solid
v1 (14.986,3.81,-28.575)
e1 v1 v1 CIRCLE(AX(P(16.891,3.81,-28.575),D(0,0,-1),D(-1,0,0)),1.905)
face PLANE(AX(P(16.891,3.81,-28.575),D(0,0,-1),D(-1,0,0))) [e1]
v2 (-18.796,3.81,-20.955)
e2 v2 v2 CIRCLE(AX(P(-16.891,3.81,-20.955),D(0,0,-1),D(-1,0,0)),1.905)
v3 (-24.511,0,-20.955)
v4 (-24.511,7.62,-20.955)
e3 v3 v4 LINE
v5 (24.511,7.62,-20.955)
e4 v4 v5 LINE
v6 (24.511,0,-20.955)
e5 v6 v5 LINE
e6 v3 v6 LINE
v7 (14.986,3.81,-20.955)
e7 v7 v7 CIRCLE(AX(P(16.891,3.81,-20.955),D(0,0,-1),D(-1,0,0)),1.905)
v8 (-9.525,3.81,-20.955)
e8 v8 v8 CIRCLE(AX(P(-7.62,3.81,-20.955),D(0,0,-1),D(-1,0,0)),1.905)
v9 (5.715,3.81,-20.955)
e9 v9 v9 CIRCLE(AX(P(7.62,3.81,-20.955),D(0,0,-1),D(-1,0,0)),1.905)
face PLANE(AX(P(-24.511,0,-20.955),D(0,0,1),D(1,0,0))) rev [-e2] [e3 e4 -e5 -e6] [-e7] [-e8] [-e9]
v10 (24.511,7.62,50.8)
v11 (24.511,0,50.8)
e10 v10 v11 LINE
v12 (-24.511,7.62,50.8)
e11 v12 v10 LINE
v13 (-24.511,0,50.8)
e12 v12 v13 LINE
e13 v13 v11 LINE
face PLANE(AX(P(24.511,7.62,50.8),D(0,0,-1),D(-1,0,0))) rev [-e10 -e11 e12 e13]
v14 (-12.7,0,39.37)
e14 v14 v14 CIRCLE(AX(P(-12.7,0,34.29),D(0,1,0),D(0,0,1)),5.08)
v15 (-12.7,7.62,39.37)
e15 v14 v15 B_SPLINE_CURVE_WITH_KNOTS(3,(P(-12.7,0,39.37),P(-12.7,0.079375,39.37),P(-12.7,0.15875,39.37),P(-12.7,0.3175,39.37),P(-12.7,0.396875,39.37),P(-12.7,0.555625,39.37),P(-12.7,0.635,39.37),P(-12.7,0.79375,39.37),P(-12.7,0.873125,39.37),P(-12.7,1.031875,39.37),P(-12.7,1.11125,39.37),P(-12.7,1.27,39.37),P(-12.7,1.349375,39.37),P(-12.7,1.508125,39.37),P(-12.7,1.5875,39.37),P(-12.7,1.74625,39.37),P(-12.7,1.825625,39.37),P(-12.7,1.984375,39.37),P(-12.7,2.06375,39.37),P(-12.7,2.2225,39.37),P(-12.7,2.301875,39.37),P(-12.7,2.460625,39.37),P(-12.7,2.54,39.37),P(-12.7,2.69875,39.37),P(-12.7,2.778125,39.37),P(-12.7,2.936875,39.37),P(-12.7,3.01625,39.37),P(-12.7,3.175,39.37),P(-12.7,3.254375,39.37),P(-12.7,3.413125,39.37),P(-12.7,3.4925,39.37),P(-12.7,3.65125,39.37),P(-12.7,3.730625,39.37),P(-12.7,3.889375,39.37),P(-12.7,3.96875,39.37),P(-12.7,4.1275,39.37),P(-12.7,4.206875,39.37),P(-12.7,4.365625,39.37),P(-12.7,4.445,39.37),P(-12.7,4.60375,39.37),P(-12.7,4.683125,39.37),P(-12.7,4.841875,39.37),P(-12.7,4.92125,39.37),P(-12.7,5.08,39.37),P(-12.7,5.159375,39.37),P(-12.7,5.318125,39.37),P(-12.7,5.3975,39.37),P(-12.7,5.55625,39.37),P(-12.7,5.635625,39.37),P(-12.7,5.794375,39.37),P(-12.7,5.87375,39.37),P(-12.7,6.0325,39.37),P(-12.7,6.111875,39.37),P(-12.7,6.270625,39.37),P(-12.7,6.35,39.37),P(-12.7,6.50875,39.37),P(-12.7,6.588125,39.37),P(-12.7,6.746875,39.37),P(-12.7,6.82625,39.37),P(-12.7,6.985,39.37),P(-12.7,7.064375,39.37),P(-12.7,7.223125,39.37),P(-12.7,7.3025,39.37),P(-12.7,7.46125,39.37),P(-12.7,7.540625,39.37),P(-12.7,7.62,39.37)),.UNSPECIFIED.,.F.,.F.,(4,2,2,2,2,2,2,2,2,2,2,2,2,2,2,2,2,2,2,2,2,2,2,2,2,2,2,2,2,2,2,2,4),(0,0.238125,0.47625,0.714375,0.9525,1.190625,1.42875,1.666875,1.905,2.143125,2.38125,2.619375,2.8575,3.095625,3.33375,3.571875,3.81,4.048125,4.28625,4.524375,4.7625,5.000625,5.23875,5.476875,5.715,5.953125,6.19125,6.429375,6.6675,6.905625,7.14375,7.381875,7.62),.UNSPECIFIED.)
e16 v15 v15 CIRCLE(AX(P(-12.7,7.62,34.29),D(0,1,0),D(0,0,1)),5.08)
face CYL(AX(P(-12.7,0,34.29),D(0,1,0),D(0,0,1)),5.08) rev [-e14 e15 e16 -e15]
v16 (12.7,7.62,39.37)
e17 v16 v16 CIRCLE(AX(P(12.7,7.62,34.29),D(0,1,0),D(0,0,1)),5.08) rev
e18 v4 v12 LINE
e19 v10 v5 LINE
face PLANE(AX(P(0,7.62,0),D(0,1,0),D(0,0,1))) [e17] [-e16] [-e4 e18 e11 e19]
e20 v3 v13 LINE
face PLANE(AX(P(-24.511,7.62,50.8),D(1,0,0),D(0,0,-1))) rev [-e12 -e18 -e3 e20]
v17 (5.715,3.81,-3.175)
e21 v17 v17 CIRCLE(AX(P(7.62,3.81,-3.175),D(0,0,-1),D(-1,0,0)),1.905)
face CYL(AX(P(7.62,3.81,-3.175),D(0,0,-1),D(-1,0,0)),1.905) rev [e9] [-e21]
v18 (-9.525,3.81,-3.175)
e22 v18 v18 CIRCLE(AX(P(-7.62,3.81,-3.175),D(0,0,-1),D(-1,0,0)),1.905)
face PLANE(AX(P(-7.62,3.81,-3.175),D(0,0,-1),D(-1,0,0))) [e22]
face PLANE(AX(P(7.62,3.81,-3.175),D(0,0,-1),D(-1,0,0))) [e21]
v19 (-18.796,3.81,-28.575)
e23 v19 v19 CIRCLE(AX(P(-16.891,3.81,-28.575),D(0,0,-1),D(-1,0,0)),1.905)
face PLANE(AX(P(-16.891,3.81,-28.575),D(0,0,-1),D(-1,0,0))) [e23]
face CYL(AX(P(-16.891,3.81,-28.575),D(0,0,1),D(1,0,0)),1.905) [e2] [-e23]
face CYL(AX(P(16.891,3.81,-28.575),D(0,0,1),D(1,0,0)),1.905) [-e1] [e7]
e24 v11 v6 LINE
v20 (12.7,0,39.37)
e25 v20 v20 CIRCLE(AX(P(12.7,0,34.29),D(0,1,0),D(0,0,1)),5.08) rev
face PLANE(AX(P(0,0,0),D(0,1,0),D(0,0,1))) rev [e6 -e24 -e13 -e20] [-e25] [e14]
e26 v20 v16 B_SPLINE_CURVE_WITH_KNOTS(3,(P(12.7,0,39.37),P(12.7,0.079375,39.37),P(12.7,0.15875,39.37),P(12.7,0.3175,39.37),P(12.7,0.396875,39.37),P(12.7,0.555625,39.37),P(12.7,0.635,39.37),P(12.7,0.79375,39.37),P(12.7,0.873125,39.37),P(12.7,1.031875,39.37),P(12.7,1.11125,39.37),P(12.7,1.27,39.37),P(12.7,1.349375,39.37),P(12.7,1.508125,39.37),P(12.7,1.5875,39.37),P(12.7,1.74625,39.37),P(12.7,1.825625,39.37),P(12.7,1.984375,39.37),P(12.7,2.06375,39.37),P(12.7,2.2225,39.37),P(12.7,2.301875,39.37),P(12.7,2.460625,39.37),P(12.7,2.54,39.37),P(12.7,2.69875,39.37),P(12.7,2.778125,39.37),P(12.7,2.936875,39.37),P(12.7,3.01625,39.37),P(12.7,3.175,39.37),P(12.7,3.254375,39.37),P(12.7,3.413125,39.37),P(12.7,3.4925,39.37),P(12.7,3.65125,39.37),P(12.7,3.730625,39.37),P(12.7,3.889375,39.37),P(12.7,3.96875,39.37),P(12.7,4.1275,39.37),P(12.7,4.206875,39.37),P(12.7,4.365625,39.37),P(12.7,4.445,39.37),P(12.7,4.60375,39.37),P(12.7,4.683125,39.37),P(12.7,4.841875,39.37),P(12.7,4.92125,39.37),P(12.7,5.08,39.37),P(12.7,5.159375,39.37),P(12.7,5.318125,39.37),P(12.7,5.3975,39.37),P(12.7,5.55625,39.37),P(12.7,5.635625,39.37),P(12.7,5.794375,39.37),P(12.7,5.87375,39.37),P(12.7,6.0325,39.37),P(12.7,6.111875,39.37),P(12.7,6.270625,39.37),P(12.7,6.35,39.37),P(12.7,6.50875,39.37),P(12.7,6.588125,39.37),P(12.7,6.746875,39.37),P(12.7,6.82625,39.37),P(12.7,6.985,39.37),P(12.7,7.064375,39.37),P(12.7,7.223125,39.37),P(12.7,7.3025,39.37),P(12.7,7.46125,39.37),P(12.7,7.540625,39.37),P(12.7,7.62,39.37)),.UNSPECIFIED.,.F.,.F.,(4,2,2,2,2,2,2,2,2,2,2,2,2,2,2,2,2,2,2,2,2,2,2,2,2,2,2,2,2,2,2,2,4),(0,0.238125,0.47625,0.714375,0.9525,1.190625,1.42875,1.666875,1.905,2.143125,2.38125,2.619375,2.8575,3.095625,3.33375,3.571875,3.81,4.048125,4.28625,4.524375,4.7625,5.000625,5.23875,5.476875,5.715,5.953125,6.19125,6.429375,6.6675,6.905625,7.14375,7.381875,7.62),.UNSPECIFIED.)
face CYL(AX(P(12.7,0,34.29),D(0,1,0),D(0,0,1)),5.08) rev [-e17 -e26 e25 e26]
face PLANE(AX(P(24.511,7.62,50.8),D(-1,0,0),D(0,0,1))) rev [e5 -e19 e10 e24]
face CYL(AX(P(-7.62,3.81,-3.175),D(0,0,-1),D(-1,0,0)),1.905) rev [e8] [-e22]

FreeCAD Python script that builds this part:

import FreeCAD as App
import Part
import Sketcher
Q = App.Units.Quantity

doc = App.newDocument("Part")
body = doc.addObject("PartDesign::Body", "Body")

# Sketch on XZ plane
sketch1 = doc.addObject("Sketcher::SketchObject", "Sketch")
body.addObject(sketch1)
sketch1.AttachmentSupport = (doc.XZ_Plane, [""])
sketch1.MapMode = "FlatFace"
sketch1.addGeometry([
    Part.LineSegment(App.Vector(-24.511, -50.8, 0), App.Vector(-24.511, 50.8, 0)),
    Part.LineSegment(App.Vector(-24.511, 50.8, 0), App.Vector(24.511, 50.8, 0)),
    Part.LineSegment(App.Vector(24.511, 50.8, 0), App.Vector(24.511, -50.8, 0)),
    Part.LineSegment(App.Vector(24.511, -50.8, 0), App.Vector(-24.511, -50.8, 0)),
], False)
sketch1.addConstraint([
    Sketcher.Constraint("Coincident", 0, 2, 1, 1),
    Sketcher.Constraint("Coincident", 1, 2, 2, 1),
    Sketcher.Constraint("Coincident", 2, 2, 3, 1),
    Sketcher.Constraint("Coincident", 3, 2, 0, 1),
    Sketcher.Constraint("Vertical", 0),
    Sketcher.Constraint("Horizontal", 1),
    Sketcher.Constraint("Vertical", 2),
    Sketcher.Constraint("Horizontal", 3),
    Sketcher.Constraint("Symmetric", 0, 2, 2, 2, -1, 1),
    Sketcher.Constraint("DistanceY", 0, 1, 0, 2, Q("4 in")),
    Sketcher.Constraint("DistanceX", 1, 1, 1, 2, Q("1.93 in")),
])
pad1 = doc.addObject("PartDesign::Pad", "Pad")
body.addObject(pad1)
pad1.Profile = sketch1
pad1.Length = Q("0.3 in")
pad1.Reversed = True

# Sketch on XZ plane
sketch2 = doc.addObject("Sketcher::SketchObject", "Sketch001")
body.addObject(sketch2)
sketch2.AttachmentSupport = (doc.XZ_Plane, [""])
sketch2.MapMode = "FlatFace"
sketch2.AttachmentOffset = App.Placement(App.Vector(0, 0, -0.3 * 25.4), App.Rotation())
sketch2.addGeometry([
    Part.Circle(App.Vector(12.7, 34.29, 0), App.Vector(0, 0, 1), 5.08),
    Part.Circle(App.Vector(-12.7, 34.29, 0), App.Vector(0, 0, 1), 5.08),
], False)
sketch2.addConstraint([
    Sketcher.Constraint("Equal", 0, 1),
    Sketcher.Constraint("Symmetric", 0, 3, 1, 3, -2),
    Sketcher.Constraint("Diameter", 0, Q("0.4 in")),
    Sketcher.Constraint("DistanceX", 1, 3, 0, 3, Q("1 in")),
    Sketcher.Constraint("DistanceY", -1, 1, 0, 3, Q("1.35 in")),
])
pocket1 = doc.addObject("PartDesign::Pocket", "Pocket")
body.addObject(pocket1)
pocket1.Profile = sketch2
pocket1.Length = Q("0.3 in")
pocket1.Reversed = True

# Sketch on XZ plane
sketch3 = doc.addObject("Sketcher::SketchObject", "Sketch002")
body.addObject(sketch3)
sketch3.AttachmentSupport = (doc.XZ_Plane, [""])
sketch3.MapMode = "FlatFace"
sketch3.AttachmentOffset = App.Placement(App.Vector(0, 0, -0.3 * 25.4), App.Rotation())
sketch3.addGeometry([
    Part.LineSegment(App.Vector(-24.511, -50.8, 0), App.Vector(-24.511, -20.955, 0)),
    Part.LineSegment(App.Vector(-24.511, -20.955, 0), App.Vector(24.511, -20.955, 0)),
    Part.LineSegment(App.Vector(24.511, -20.955, 0), App.Vector(24.511, -50.8, 0)),
    Part.LineSegment(App.Vector(24.511, -50.8, 0), App.Vector(-24.511, -50.8, 0)),
], False)
sketch3.addConstraint([
    Sketcher.Constraint("Coincident", 0, 2, 1, 1),
    Sketcher.Constraint("Coincident", 1, 2, 2, 1),
    Sketcher.Constraint("Coincident", 2, 2, 3, 1),
    Sketcher.Constraint("Coincident", 3, 2, 0, 1),
    Sketcher.Constraint("Vertical", 0),
    Sketcher.Constraint("Horizontal", 1),
    Sketcher.Constraint("Vertical", 2),
    Sketcher.Constraint("Horizontal", 3),
    Sketcher.Constraint("DistanceY", 2, 2, -1, 1, Q("2 in")),
    Sketcher.Constraint("DistanceX", 1, 1, 1, 2, Q("1.93 in")),
    Sketcher.Constraint("DistanceY", 0, 1, 0, 2, Q("1.175 in")),
    Sketcher.Constraint("DistanceX", 0, 2, -1, 1, Q("0.965 in")),
])
pocket2 = doc.addObject("PartDesign::Pocket", "Pocket001")
body.addObject(pocket2)
pocket2.Profile = sketch3
pocket2.Type = "ThroughAll"
pocket2.Reversed = True

# Sketch on XY plane
sketch4 = doc.addObject("Sketcher::SketchObject", "Sketch003")
body.addObject(sketch4)
sketch4.AttachmentSupport = (doc.XY_Plane, [""])
sketch4.MapMode = "FlatFace"
sketch4.AttachmentOffset = App.Placement(App.Vector(0, 0, -0.825 * 25.4), App.Rotation())
sketch4.addGeometry([
    Part.Circle(App.Vector(16.891, 3.81, 0), App.Vector(0, 0, 1), 1.905),
    Part.Circle(App.Vector(7.62, 3.81, 0), App.Vector(0, 0, 1), 1.905),
    Part.Circle(App.Vector(-7.62, 3.81, 0), App.Vector(0, 0, 1), 1.905),
    Part.Circle(App.Vector(-16.891, 3.81, 0), App.Vector(0, 0, 1), 1.905),
], False)
sketch4.addConstraint([
    Sketcher.Constraint("Equal", 0, 1),
    Sketcher.Constraint("Equal", 1, 2),
    Sketcher.Constraint("Equal", 2, 3),
    Sketcher.Constraint("Symmetric", 1, 3, 2, 3, -2),
    Sketcher.Constraint("Symmetric", 0, 3, 3, 3, -2),
    Sketcher.Constraint("Horizontal", 0, 3, 1, 3),
    Sketcher.Constraint("Diameter", 0, Q("0.15 in")),
    Sketcher.Constraint("DistanceX", -1, 1, 1, 3, Q("0.3 in")),
    Sketcher.Constraint("DistanceY", -1, 1, 0, 3, Q("0.15 in")),
    Sketcher.Constraint("DistanceX", 3, 3, 0, 3, Q("1.33 in")),
])
pocket3 = doc.addObject("PartDesign::Pocket", "Pocket002")
body.addObject(pocket3)
pocket3.Profile = sketch4
pocket3.Length = Q("0.7 in")
pocket3.Reversed = True

# Sketch on XY plane
sketch5 = doc.addObject("Sketcher::SketchObject", "Sketch004")
body.addObject(sketch5)
sketch5.AttachmentSupport = (doc.XY_Plane, [""])
sketch5.MapMode = "FlatFace"
sketch5.AttachmentOffset = App.Placement(App.Vector(0, 0, -1.125 * 25.4), App.Rotation())
sketch5.addGeometry([
    Part.Circle(App.Vector(16.891, 3.81, 0), App.Vector(0, 0, 1), 1.905),
    Part.Circle(App.Vector(-16.891, 3.81, 0), App.Vector(0, 0, 1), 1.905),
], False)
sketch5.addConstraint([
    Sketcher.Constraint("Equal", 0, 1),
    Sketcher.Constraint("Symmetric", 0, 3, 1, 3, -2),
    Sketcher.Constraint("Diameter", 0, Q("0.15 in")),
    Sketcher.Constraint("DistanceY", -1, 1, 0, 3, Q("0.15 in")),
    Sketcher.Constraint("DistanceX", 1, 3, 0, 3, Q("1.33 in")),
])
pad2 = doc.addObject("PartDesign::Pad", "Pad001")
body.addObject(pad2)
pad2.Profile = sketch5
pad2.Length = Q("1 in")

doc.recompute()
